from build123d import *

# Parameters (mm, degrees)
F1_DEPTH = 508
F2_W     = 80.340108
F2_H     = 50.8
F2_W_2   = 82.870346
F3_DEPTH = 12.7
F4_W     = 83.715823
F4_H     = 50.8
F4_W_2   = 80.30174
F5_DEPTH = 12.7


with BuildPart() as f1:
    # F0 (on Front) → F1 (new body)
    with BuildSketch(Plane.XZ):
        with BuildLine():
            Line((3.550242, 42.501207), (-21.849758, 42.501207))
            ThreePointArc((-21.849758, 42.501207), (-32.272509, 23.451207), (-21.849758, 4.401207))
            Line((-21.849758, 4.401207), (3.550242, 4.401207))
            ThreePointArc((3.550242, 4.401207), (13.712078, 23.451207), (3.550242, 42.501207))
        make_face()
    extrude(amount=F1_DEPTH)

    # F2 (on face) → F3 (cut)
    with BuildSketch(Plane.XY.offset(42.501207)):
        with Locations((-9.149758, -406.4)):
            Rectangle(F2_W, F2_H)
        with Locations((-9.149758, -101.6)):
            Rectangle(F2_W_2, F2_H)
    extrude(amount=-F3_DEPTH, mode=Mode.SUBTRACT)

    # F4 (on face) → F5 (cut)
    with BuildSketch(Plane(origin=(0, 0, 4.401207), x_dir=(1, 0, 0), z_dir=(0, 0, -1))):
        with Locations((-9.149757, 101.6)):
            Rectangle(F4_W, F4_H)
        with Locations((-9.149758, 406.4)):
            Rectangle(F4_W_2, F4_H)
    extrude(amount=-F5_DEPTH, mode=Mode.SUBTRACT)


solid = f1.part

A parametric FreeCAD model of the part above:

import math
import FreeCAD as App
import Part
import Sketcher

V = App.Vector
Q = App.Units.Quantity

doc = App.newDocument("Part")
body = doc.addObject("PartDesign::Body", "Body")

sketch1 = body.newObject("Sketcher::SketchObject", "Sketch")
sketch1.AttachmentSupport = (doc.getObject("XZ_Plane"), [""])
sketch1.MapMode = "FlatFace"
sketch1.addGeometry(Part.LineSegment(V(4, 43, 0), V(-22, 43, 0)), False)
sketch1.addGeometry(Part.ArcOfCircle(Part.Circle(V(-10, 23, 0), V(0, 0, 1), 23), math.radians(123), math.radians(237)), False)
sketch1.addGeometry(Part.LineSegment(V(-22, 4, 0), V(4, 4, 0)), False)
sketch1.addGeometry(Part.ArcOfCircle(Part.Circle(V(-9, 23, 0), V(0, 0, 1), 23), math.radians(-56), math.radians(56)), False)
sketch1.addConstraint(Sketcher.Constraint("Coincident", 0, 2, 1, 1))
sketch1.addConstraint(Sketcher.Constraint("Coincident", 1, 2, 2, 1))
sketch1.addConstraint(Sketcher.Constraint("Coincident", 2, 2, 3, 1))
sketch1.addConstraint(Sketcher.Constraint("Coincident", 3, 2, 0, 1))
sketch1.addConstraint(Sketcher.Constraint("Horizontal", 0))
sketch1.addConstraint(Sketcher.Constraint("Horizontal", 2))
sketch1.addConstraint(Sketcher.Constraint("Horizontal", 1, 3, 3, 3))
sketch1.addConstraint(Sketcher.Constraint("Vertical", 0, 2, 1, 2))
sketch1.addConstraint(Sketcher.Constraint("DistanceX", 0, 2, 0, 1, Q("1 in")))
sketch1.addConstraint(Sketcher.Constraint("DistanceY", 1, 2, 0, 2, Q("1.5 in")))
sketch1.addConstraint(Sketcher.Constraint("Radius", 1, Q("22.620527 mm")))
sketch1.addConstraint(Sketcher.Constraint("Radius", 3, Q("22.937066 mm")))
sketch1.addConstraint(Sketcher.Constraint("DistanceX", 3, 3, -1, 1, Q("9.224988 mm")))
sketch1.addConstraint(Sketcher.Constraint("DistanceY", -1, 1, 1, 3, Q("23.451207 mm")))
pad1 = body.newObject("PartDesign::Pad", "Pad")
pad1.Profile = sketch1
pad1.Length = Q("20 in")

sketch2 = body.newObject("Sketcher::SketchObject", "Sketch001")
sketch2.AttachmentSupport = (doc.getObject("XY_Plane"), [""])
sketch2.MapMode = "FlatFace"
sketch2.AttachmentOffset = App.Placement(V(0, 0, 42.501207), App.Rotation())
sketch2.addGeometry(Part.LineSegment(V(-49, -381, 0), V(-49, -432, 0)), False)
sketch2.addGeometry(Part.LineSegment(V(-49, -432, 0), V(31, -432, 0)), False)
sketch2.addGeometry(Part.LineSegment(V(31, -432, 0), V(31, -381, 0)), False)
sketch2.addGeometry(Part.LineSegment(V(31, -381, 0), V(-49, -381, 0)), False)
sketch2.addGeometry(Part.LineSegment(V(-51, -76, 0), V(-51, -127, 0)), False)
sketch2.addGeometry(Part.LineSegment(V(-51, -127, 0), V(32, -127, 0)), False)
sketch2.addGeometry(Part.LineSegment(V(32, -127, 0), V(32, -76, 0)), False)
sketch2.addGeometry(Part.LineSegment(V(32, -76, 0), V(-51, -76, 0)), False)
sketch2.addConstraint(Sketcher.Constraint("Coincident", 0, 2, 1, 1))
sketch2.addConstraint(Sketcher.Constraint("Coincident", 1, 2, 2, 1))
sketch2.addConstraint(Sketcher.Constraint("Coincident", 2, 2, 3, 1))
sketch2.addConstraint(Sketcher.Constraint("Coincident", 3, 2, 0, 1))
sketch2.addConstraint(Sketcher.Constraint("Coincident", 4, 2, 5, 1))
sketch2.addConstraint(Sketcher.Constraint("Coincident", 5, 2, 6, 1))
sketch2.addConstraint(Sketcher.Constraint("Coincident", 6, 2, 7, 1))
sketch2.addConstraint(Sketcher.Constraint("Coincident", 7, 2, 4, 1))
sketch2.addConstraint(Sketcher.Constraint("Vertical", 0))
sketch2.addConstraint(Sketcher.Constraint("Horizontal", 1))
sketch2.addConstraint(Sketcher.Constraint("Vertical", 2))
sketch2.addConstraint(Sketcher.Constraint("Horizontal", 3))
sketch2.addConstraint(Sketcher.Constraint("Vertical", 4))
sketch2.addConstraint(Sketcher.Constraint("Horizontal", 5))
sketch2.addConstraint(Sketcher.Constraint("Vertical", 6))
sketch2.addConstraint(Sketcher.Constraint("Horizontal", 7))
sketch2.addConstraint(Sketcher.Constraint("Equal", 2, 4))
sketch2.addConstraint(Sketcher.Constraint("DistanceY", 0, 2, 0, 1, Q("2 in")))
sketch2.addConstraint(Sketcher.Constraint("DistanceY", 0, 2, -1, 1, Q("17 in")))
sketch2.addConstraint(Sketcher.Constraint("DistanceY", 4, 2, -1, 1, Q("5 in")))
sketch2.addConstraint(Sketcher.Constraint("DistanceX", 1, 1, 1, 2, Q("80.340108 mm")))
sketch2.addConstraint(Sketcher.Constraint("DistanceX", 5, 1, 5, 2, Q("82.870346 mm")))
sketch2.addConstraint(Sketcher.Constraint("DistanceX", 4, 2, -1, 1, Q("50.584931 mm")))
sketch2.addConstraint(Sketcher.Constraint("DistanceX", 4, 2, 3, 2, Q("1.265119 mm")))
pocket1 = body.newObject("PartDesign::Pocket", "Pocket")
pocket1.Profile = sketch2
pocket1.Length = Q("0.5 in")

sketch3 = body.newObject("Sketcher::SketchObject", "Sketch002")
sketch3.AttachmentSupport = (doc.getObject("XY_Plane"), [""])
sketch3.MapMode = "FlatFace"
sketch3.AttachmentOffset = App.Placement(V(0, 0, 4.401207), App.Rotation())
sketch3.addGeometry(Part.LineSegment(V(-51, -127, 0), V(-51, -76, 0)), False)
sketch3.addGeometry(Part.LineSegment(V(-51, -76, 0), V(33, -76, 0)), False)
sketch3.addGeometry(Part.LineSegment(V(33, -76, 0), V(33, -127, 0)), False)
sketch3.addGeometry(Part.LineSegment(V(33, -127, 0), V(-51, -127, 0)), False)
sketch3.addGeometry(Part.LineSegment(V(-49, -432, 0), V(-49, -381, 0)), False)
sketch3.addGeometry(Part.LineSegment(V(-49, -381, 0), V(31, -381, 0)), False)
sketch3.addGeometry(Part.LineSegment(V(31, -381, 0), V(31, -432, 0)), False)
sketch3.addGeometry(Part.LineSegment(V(31, -432, 0), V(-49, -432, 0)), False)
sketch3.addConstraint(Sketcher.Constraint("Coincident", 0, 2, 1, 1))
sketch3.addConstraint(Sketcher.Constraint("Coincident", 1, 2, 2, 1))
sketch3.addConstraint(Sketcher.Constraint("Coincident", 2, 2, 3, 1))
sketch3.addConstraint(Sketcher.Constraint("Coincident", 3, 2, 0, 1))
sketch3.addConstraint(Sketcher.Constraint("Coincident", 4, 2, 5, 1))
sketch3.addConstraint(Sketcher.Constraint("Coincident", 5, 2, 6, 1))
sketch3.addConstraint(Sketcher.Constraint("Coincident", 6, 2, 7, 1))
sketch3.addConstraint(Sketcher.Constraint("Coincident", 7, 2, 4, 1))
sketch3.addConstraint(Sketcher.Constraint("Vertical", 0))
sketch3.addConstraint(Sketcher.Constraint("Horizontal", 1))
sketch3.addConstraint(Sketcher.Constraint("Vertical", 2))
sketch3.addConstraint(Sketcher.Constraint("Horizontal", 3))
sketch3.addConstraint(Sketcher.Constraint("Vertical", 4))
sketch3.addConstraint(Sketcher.Constraint("Horizontal", 5))
sketch3.addConstraint(Sketcher.Constraint("Vertical", 6))
sketch3.addConstraint(Sketcher.Constraint("Horizontal", 7))
sketch3.addConstraint(Sketcher.Constraint("Equal", 2, 4))
sketch3.addConstraint(Sketcher.Constraint("DistanceY", 0, 1, 0, 2, Q("2 in")))
sketch3.addConstraint(Sketcher.Constraint("DistanceY", 0, 2, -1, 1, Q("3 in")))
sketch3.addConstraint(Sketcher.Constraint("DistanceY", 4, 2, -1, 1, Q("15 in")))
sketch3.addConstraint(Sketcher.Constraint("DistanceX", 5, 1, 5, 2, Q("80.30174 mm")))
sketch3.addConstraint(Sketcher.Constraint("DistanceX", 1, 1, 1, 2, Q("83.715823 mm")))
sketch3.addConstraint(Sketcher.Constraint("DistanceX", 0, 2, -1, 1, Q("51.007669 mm")))
sketch3.addConstraint(Sketcher.Constraint("DistanceX", 4, 2, -1, 1, Q("49.300628 mm")))
pocket2 = body.newObject("PartDesign::Pocket", "Pocket001")
pocket2.Profile = sketch3
pocket2.Length = Q("0.5 in")
pocket2.Reversed = True

doc.recompute()
